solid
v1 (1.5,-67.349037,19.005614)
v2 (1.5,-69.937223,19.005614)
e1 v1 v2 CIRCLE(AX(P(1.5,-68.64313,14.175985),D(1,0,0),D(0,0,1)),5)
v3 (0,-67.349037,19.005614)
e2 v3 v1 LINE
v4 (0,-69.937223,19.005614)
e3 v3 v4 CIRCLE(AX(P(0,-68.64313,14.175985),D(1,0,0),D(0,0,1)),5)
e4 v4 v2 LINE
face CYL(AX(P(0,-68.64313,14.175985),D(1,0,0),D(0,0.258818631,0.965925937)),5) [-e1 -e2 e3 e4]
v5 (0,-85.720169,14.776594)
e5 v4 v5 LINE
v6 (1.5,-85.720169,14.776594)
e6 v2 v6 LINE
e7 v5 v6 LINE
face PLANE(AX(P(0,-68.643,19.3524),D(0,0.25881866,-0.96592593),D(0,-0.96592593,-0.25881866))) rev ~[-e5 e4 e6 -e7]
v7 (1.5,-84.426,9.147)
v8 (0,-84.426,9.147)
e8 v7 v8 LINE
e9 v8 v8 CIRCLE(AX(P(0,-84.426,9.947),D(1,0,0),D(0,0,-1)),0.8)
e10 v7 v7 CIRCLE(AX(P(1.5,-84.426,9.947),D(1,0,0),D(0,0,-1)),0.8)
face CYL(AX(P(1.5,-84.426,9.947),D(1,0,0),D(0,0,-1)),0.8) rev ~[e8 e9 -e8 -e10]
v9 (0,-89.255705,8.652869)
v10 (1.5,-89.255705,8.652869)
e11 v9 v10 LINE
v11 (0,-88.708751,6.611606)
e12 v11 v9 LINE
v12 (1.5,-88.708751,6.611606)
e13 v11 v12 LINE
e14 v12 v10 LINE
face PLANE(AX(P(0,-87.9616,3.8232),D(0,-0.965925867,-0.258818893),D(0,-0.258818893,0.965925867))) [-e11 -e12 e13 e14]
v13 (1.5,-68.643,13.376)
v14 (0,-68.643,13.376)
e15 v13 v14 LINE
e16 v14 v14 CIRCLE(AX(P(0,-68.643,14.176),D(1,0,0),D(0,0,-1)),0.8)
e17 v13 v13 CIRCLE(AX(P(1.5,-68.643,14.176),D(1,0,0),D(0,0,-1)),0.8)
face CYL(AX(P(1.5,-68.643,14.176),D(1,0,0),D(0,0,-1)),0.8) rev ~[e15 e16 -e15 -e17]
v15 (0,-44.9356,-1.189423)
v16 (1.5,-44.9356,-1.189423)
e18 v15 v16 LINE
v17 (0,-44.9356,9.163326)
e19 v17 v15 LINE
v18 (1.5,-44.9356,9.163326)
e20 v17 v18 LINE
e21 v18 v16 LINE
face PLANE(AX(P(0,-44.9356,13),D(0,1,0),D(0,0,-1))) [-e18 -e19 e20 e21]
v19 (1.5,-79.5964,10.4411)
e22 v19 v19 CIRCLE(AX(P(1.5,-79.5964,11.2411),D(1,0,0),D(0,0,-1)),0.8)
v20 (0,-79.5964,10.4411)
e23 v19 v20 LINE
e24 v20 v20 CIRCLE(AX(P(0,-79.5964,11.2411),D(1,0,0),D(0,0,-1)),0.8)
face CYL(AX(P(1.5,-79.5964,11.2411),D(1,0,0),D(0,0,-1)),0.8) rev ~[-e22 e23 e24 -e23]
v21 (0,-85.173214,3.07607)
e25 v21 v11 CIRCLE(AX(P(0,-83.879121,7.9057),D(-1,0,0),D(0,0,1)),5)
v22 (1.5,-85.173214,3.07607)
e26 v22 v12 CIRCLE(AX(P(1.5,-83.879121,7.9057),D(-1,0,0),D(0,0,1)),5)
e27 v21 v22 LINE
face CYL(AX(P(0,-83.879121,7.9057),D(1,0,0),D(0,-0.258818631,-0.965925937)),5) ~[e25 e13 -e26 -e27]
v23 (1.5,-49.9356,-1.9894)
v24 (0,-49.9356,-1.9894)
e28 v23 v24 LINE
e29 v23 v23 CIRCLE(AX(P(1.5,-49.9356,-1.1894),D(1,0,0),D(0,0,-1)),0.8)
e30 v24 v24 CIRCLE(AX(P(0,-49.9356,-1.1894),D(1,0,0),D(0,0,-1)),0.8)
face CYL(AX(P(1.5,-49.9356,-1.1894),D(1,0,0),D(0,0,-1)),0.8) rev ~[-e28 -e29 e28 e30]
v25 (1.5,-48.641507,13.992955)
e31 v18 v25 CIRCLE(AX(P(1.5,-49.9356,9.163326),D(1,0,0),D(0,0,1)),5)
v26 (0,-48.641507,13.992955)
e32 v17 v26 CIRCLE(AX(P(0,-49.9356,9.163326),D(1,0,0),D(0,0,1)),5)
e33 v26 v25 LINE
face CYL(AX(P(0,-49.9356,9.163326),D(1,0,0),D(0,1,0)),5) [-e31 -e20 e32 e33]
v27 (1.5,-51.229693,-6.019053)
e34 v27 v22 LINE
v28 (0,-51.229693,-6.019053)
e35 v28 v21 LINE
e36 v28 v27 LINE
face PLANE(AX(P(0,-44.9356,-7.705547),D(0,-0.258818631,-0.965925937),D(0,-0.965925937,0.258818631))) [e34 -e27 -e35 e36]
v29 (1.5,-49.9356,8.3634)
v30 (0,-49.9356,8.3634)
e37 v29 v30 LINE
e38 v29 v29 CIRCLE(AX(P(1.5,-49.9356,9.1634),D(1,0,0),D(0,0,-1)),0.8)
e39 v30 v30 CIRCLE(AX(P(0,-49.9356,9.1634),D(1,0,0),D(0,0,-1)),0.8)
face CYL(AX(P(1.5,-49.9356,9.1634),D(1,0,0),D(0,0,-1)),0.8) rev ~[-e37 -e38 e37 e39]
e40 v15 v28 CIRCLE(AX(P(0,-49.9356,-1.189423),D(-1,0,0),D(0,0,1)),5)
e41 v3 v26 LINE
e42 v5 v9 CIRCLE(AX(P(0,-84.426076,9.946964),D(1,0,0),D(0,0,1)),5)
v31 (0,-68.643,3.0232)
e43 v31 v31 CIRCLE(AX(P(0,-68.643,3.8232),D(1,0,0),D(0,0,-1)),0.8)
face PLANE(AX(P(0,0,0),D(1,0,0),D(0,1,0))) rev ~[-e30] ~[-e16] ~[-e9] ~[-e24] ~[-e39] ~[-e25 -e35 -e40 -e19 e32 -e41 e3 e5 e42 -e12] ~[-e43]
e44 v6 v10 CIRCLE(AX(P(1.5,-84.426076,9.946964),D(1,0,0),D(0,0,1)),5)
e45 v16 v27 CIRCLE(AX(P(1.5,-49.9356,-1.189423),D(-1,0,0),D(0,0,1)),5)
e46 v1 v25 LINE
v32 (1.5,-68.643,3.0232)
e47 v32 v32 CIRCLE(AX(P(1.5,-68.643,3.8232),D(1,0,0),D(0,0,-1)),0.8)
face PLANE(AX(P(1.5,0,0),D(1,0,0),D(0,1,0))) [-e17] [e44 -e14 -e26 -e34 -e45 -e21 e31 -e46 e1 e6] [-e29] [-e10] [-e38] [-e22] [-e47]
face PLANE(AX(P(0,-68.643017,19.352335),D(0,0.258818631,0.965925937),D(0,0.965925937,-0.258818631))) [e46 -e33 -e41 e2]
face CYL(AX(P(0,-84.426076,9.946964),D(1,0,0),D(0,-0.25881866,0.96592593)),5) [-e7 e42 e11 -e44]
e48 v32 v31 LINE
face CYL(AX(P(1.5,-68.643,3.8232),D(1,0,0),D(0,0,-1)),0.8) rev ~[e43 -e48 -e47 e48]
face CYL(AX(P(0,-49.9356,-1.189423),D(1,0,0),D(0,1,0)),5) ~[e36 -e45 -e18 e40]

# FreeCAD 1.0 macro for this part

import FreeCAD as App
import Part
import Sketcher

V = App.Vector
Q = App.Units.Quantity


def edges_at(feature, points):
    """Names of the edges that pass closest to the given points."""
    edges = feature.Shape.Edges
    near = lambda p: min(range(len(edges)), key=lambda i: edges[i].distToShape(Part.Vertex(*p))[0])
    return sorted({f"Edge{near(p) + 1}" for p in points})


def add_polygon(sketch, points):
    """Adds a closed chain of lines whose ends are joined by coincident constraints."""
    first, n = sketch.GeometryCount, len(points)
    for a, b in zip(points, points[1:] + points[:1]):
        sketch.addGeometry(Part.LineSegment(App.Vector(*a, 0), App.Vector(*b, 0)), False)
    for i in range(n):
        sketch.addConstraint(Sketcher.Constraint("Coincident", first + i, 2, first + (i + 1) % n, 1))

doc = App.newDocument("Part")
params = doc.addObject("Spreadsheet::Sheet", "Params")
for row, (alias, value) in enumerate([
    ("sketch1_length", "10 mm"),
    ("pad1_length", "1.5 mm"),
    ("fillet_radius", "5 mm"),
    ("sketch2_diameter", "1.6 mm"),
], start=1):
    params.set(f"A{row}", alias)
    params.set(f"B{row}", "=" + value)
    params.setAlias(f"B{row}", alias)

body = doc.addObject("PartDesign::Body", "Body")

# Sketch on YZ plane
sketch1 = body.newObject("Sketcher::SketchObject", "Sketch")
sketch1.AttachmentSupport = (doc.getObject("YZ_Plane"), [""])
sketch1.MapMode = "FlatFace"
add_polygon(sketch1, [(-44.9356, -7.705547), (-44.935609, 12.999965), (-68.643, 19.3524), (-90.5498, 13.4825), (-87.961596, 3.823214)])  # lines 0-4
sketch1.addConstraint(Sketcher.Constraint("Vertical", 0))
sketch1.addConstraint(Sketcher.Constraint("Perpendicular", 2, 3))
sketch1.addConstraint(Sketcher.Constraint("Parallel", 1, 4))
sketch1.addConstraint(Sketcher.Constraint("Angle", 4, Q("-15 deg")))
sketch1.addConstraint(Sketcher.Constraint("Distance", 3, Q("10 mm")))
sketch1.addConstraint(Sketcher.Constraint("Angle", 2, Q("-165 deg")))
sketch1.addConstraint(Sketcher.Constraint("DistanceY", -1, 1, 0, 2, Q("13 mm")))
sketch1.addConstraint(Sketcher.Constraint("DistanceY", 0, 1, 0, 2, Q("20.7055 mm")))
sketch1.addConstraint(Sketcher.Constraint("DistanceX", 1, 2, -1, 1, Q("68.643 mm")))
sketch1.addConstraint(Sketcher.Constraint("DistanceX", 3, 2, 0, 2, Q("43.026 mm")))
sketch1.setExpression("Constraints[9]", "Params.sketch1_length")
pad1 = body.newObject("PartDesign::Pad", "Pad")
pad1.Profile = sketch1
pad1.setExpression("Length", "Params.pad1_length")
doc.recompute()

fillet = body.newObject("PartDesign::Fillet", "Fillet")
fillet.Base = (pad1, edges_at(pad1, [
    (0.75, -68.643, 19.352),
    (0.75, -90.55, 13.482),
    (0.75, -87.962, 3.823),
    (0.75, -44.936, -7.705),
    (0.75, -44.936, 13),
]))
fillet.setExpression("Radius", "Params.fillet_radius")

# Sketch on YZ plane
sketch2 = body.newObject("Sketcher::SketchObject", "Sketch001")
sketch2.AttachmentSupport = (doc.getObject("YZ_Plane"), [""])
sketch2.MapMode = "FlatFace"
sketch2.AttachmentOffset = App.Placement(V(0, 0, 1.5), App.Rotation())
sketch2.addGeometry(Part.Circle(V(-84.426, 9.947, 0), V(0, 0, 1), 0.8), False)
sketch2.addGeometry(Part.Circle(V(-79.5964, 11.2411, 0), V(0, 0, 1), 0.8), False)
sketch2.addGeometry(Part.Circle(V(-68.643, 14.176, 0), V(0, 0, 1), 0.8), False)
sketch2.addGeometry(Part.Circle(V(-49.9356, 9.1634, 0), V(0, 0, 1), 0.8), False)
sketch2.addGeometry(Part.Circle(V(-49.9356, -1.1894, 0), V(0, 0, 1), 0.8), False)
sketch2.addGeometry(Part.Circle(V(-68.643, 3.8232, 0), V(0, 0, 1), 0.8), False)
sketch2.addConstraint(Sketcher.Constraint("Equal", 0, 1))
sketch2.addConstraint(Sketcher.Constraint("Equal", 1, 2))
sketch2.addConstraint(Sketcher.Constraint("Equal", 2, 3))
sketch2.addConstraint(Sketcher.Constraint("Equal", 3, 4))
sketch2.addConstraint(Sketcher.Constraint("Equal", 4, 5))
sketch2.addConstraint(Sketcher.Constraint("Vertical", 3, 3, 4, 3))
sketch2.addConstraint(Sketcher.Constraint("Vertical", 2, 3, 5, 3))
sketch2.addConstraint(Sketcher.Constraint("Diameter", 0, Q("1.6 mm")))
sketch2.addConstraint(Sketcher.Constraint("DistanceX", 0, 3, -1, 1, Q("84.426 mm")))
sketch2.addConstraint(Sketcher.Constraint("DistanceY", -1, 1, 0, 3, Q("9.947 mm")))
sketch2.addConstraint(Sketcher.Constraint("DistanceY", -1, 1, 1, 3, Q("11.241 mm")))
sketch2.addConstraint(Sketcher.Constraint("DistanceX", 2, 3, -1, 1, Q("68.643 mm")))
sketch2.addConstraint(Sketcher.Constraint("DistanceY", -1, 1, 2, 3, Q("14.176 mm")))
sketch2.addConstraint(Sketcher.Constraint("DistanceY", 5, 3, 1, 3, Q("7.418 mm")))
sketch2.addConstraint(Sketcher.Constraint("DistanceX", 1, 3, -1, 1, Q("79.5964 mm")))
sketch2.addConstraint(Sketcher.Constraint("DistanceX", 3, 3, -1, 1, Q("49.9356 mm")))
sketch2.addConstraint(Sketcher.Constraint("DistanceY", -1, 1, 3, 3, Q("9.1634 mm")))
sketch2.addConstraint(Sketcher.Constraint("DistanceY", 4, 3, -1, 1, Q("1.1894 mm")))
sketch2.setExpression("Constraints[7]", "Params.sketch2_diameter")
pocket1 = body.newObject("PartDesign::Pocket", "Pocket")
pocket1.Profile = sketch2
pocket1.Type = "ThroughAll"

doc.recompute()
